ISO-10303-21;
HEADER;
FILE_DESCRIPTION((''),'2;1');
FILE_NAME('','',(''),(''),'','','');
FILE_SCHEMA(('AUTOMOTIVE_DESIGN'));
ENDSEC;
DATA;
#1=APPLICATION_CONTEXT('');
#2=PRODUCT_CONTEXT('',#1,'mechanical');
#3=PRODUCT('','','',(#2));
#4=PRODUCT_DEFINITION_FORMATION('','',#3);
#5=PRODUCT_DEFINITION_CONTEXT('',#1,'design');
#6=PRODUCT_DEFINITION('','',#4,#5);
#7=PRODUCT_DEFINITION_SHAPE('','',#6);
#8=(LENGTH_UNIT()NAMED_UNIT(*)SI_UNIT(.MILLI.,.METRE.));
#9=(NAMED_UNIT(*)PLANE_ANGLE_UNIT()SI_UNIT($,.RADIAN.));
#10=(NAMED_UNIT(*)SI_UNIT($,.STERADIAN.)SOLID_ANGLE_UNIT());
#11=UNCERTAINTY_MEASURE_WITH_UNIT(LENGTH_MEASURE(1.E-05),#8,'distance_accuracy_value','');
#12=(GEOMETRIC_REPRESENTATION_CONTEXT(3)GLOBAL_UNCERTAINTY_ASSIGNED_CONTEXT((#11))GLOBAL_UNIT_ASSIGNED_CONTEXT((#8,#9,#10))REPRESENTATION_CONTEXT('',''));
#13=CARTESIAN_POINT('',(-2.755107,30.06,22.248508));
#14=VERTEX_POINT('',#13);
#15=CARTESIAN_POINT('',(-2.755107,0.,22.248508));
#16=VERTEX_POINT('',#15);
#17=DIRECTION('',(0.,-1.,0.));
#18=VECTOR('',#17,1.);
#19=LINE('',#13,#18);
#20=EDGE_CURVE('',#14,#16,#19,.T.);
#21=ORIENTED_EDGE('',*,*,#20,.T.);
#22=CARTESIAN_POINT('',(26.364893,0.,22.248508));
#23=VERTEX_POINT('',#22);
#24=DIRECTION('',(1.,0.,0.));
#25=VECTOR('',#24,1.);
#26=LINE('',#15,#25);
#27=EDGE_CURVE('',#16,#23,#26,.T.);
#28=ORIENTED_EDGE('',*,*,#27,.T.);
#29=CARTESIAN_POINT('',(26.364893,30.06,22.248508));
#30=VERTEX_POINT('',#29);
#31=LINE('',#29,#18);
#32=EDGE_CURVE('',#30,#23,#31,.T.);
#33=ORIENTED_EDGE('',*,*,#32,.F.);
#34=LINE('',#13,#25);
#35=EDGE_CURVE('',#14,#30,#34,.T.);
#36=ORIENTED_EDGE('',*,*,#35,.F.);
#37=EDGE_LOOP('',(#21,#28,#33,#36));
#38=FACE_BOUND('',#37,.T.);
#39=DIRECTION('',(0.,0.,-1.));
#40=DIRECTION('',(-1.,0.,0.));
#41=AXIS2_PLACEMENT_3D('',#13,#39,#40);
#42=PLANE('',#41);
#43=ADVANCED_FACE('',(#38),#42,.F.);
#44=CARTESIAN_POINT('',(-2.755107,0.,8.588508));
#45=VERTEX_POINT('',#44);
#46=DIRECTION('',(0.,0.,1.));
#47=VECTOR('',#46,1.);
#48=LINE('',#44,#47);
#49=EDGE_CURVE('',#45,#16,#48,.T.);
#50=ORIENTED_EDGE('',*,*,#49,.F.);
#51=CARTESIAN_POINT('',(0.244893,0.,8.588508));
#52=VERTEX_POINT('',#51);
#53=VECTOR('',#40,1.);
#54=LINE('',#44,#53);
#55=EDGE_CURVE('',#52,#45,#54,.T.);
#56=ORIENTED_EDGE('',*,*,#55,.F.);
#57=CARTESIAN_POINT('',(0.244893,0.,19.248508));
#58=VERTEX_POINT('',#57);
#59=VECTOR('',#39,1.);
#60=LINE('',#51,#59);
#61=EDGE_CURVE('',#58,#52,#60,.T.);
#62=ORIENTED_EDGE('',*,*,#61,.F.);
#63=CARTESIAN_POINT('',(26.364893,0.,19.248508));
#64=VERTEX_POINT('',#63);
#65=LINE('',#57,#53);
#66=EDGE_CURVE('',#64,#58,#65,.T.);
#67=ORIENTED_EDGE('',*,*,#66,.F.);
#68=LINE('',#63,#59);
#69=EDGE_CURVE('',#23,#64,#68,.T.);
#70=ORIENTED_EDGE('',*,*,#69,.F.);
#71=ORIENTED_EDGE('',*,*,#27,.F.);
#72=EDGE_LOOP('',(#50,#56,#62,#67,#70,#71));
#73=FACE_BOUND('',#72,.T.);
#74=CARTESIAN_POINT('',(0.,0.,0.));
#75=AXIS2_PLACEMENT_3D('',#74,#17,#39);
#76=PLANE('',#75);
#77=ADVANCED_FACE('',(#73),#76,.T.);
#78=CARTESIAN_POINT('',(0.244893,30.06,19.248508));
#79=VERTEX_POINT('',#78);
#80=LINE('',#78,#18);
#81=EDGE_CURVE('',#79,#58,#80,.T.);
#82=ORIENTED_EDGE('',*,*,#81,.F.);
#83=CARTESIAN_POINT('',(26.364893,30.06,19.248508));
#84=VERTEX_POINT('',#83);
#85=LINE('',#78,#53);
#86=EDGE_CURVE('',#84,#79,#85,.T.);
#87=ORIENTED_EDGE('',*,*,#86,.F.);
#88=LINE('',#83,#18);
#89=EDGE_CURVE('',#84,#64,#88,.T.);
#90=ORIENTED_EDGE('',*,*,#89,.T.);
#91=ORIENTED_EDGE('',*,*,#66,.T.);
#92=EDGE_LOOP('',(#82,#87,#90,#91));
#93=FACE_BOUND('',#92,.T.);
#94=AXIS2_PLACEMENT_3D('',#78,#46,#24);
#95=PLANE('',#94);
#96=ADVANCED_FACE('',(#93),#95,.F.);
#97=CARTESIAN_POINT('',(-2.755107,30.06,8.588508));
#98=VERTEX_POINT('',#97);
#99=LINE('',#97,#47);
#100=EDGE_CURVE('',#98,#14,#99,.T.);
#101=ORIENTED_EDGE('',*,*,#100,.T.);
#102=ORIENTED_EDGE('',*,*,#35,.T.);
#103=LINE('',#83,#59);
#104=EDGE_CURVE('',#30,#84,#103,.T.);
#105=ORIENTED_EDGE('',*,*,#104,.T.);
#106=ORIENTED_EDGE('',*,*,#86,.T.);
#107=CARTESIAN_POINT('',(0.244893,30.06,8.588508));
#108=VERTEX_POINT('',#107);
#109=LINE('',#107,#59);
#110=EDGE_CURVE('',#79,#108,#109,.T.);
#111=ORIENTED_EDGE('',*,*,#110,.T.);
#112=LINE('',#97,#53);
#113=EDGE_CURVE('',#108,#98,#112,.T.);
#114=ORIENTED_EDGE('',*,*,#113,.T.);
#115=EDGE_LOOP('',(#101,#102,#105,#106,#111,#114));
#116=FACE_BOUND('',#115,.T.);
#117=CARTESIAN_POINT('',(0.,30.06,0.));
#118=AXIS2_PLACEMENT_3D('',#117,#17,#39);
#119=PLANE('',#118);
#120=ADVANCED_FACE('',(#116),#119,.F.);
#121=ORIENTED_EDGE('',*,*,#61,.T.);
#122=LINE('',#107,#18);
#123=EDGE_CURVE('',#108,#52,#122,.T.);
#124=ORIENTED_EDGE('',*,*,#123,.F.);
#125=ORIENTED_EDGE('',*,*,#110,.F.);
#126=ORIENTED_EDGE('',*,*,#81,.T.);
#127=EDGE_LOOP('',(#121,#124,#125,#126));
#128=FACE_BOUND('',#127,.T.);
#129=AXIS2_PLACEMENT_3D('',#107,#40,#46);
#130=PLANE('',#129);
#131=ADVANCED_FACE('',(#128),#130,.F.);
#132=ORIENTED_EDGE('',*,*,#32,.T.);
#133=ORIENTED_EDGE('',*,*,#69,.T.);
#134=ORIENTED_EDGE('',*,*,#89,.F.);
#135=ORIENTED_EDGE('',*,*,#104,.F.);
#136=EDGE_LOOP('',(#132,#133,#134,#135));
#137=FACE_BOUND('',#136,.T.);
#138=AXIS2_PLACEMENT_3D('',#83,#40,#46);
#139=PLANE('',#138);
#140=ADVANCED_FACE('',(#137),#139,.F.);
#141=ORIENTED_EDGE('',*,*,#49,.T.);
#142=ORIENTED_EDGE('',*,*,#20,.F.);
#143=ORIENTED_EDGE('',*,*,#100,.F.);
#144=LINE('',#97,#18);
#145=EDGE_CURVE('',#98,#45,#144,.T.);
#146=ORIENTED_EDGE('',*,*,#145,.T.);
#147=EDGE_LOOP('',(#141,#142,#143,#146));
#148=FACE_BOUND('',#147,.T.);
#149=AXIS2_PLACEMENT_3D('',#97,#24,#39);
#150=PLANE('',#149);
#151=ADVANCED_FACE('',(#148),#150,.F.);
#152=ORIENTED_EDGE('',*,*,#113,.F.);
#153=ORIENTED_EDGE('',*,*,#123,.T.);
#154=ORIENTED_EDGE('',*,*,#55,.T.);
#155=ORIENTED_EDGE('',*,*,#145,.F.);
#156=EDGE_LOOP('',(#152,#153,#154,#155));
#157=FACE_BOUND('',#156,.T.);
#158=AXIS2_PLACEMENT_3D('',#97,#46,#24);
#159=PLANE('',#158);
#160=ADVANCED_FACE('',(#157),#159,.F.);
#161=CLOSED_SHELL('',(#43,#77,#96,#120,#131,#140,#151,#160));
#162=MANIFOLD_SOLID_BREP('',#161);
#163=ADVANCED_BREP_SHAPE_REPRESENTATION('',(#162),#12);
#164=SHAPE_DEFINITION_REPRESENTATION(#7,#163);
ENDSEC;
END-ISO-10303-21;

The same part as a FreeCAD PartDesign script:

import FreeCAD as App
import Part
import Sketcher

V = App.Vector

doc = App.newDocument("Part")
body = doc.addObject("PartDesign::Body", "Body")

# Sketch on XZ plane
sketch1 = body.newObject("Sketcher::SketchObject", "Sketch")
sketch1.AttachmentSupport = (doc.getObject("XZ_Plane"), [""])
sketch1.MapMode = "FlatFace"
sketch1.addGeometry(Part.LineSegment(V(-2.8, 8.6, 0), V(-2.8, 22.2, 0)), False)
sketch1.addGeometry(Part.LineSegment(V(-2.8, 22.2, 0), V(26.4, 22.2, 0)), False)
sketch1.addGeometry(Part.LineSegment(V(26.4, 22.2, 0), V(26.4, 19.2, 0)), False)
sketch1.addGeometry(Part.LineSegment(V(26.4, 19.2, 0), V(0.2, 19.2, 0)), False)
sketch1.addGeometry(Part.LineSegment(V(0.2, 19.2, 0), V(0.2, 8.6, 0)), False)
sketch1.addGeometry(Part.LineSegment(V(0.2, 8.6, 0), V(-2.8, 8.6, 0)), False)
sketch1.addConstraint(Sketcher.Constraint("Coincident", 0, 2, 1, 1))
sketch1.addConstraint(Sketcher.Constraint("Coincident", 1, 2, 2, 1))
sketch1.addConstraint(Sketcher.Constraint("Coincident", 2, 2, 3, 1))
sketch1.addConstraint(Sketcher.Constraint("Coincident", 3, 2, 4, 1))
sketch1.addConstraint(Sketcher.Constraint("Coincident", 4, 2, 5, 1))
sketch1.addConstraint(Sketcher.Constraint("Coincident", 5, 2, 0, 1))
sketch1.addConstraint(Sketcher.Constraint("Vertical", 0))
sketch1.addConstraint(Sketcher.Constraint("Horizontal", 1))
sketch1.addConstraint(Sketcher.Constraint("Vertical", 2))
sketch1.addConstraint(Sketcher.Constraint("Horizontal", 3))
sketch1.addConstraint(Sketcher.Constraint("Vertical", 4))
sketch1.addConstraint(Sketcher.Constraint("Horizontal", 5))
sketch1.addConstraint(Sketcher.Constraint("Equal", 5, 2))
sketch1.addConstraint(Sketcher.Constraint("DistanceX", 5, 2, 5, 1, 3.0))
sketch1.addConstraint(Sketcher.Constraint("DistanceX", 1, 1, 1, 2, 29.12))
sketch1.addConstraint(Sketcher.Constraint("DistanceY", 0, 1, 0, 2, 13.66))
sketch1.addConstraint(Sketcher.Constraint("DistanceY", -1, 1, 0, 2, 22.248508))
sketch1.addConstraint(Sketcher.Constraint("DistanceX", 0, 2, -1, 1, 2.755107))
pad1 = body.newObject("PartDesign::Pad", "Pad")
pad1.Profile = sketch1
pad1.Length = 30.06
pad1.Reversed = True

doc.recompute()
